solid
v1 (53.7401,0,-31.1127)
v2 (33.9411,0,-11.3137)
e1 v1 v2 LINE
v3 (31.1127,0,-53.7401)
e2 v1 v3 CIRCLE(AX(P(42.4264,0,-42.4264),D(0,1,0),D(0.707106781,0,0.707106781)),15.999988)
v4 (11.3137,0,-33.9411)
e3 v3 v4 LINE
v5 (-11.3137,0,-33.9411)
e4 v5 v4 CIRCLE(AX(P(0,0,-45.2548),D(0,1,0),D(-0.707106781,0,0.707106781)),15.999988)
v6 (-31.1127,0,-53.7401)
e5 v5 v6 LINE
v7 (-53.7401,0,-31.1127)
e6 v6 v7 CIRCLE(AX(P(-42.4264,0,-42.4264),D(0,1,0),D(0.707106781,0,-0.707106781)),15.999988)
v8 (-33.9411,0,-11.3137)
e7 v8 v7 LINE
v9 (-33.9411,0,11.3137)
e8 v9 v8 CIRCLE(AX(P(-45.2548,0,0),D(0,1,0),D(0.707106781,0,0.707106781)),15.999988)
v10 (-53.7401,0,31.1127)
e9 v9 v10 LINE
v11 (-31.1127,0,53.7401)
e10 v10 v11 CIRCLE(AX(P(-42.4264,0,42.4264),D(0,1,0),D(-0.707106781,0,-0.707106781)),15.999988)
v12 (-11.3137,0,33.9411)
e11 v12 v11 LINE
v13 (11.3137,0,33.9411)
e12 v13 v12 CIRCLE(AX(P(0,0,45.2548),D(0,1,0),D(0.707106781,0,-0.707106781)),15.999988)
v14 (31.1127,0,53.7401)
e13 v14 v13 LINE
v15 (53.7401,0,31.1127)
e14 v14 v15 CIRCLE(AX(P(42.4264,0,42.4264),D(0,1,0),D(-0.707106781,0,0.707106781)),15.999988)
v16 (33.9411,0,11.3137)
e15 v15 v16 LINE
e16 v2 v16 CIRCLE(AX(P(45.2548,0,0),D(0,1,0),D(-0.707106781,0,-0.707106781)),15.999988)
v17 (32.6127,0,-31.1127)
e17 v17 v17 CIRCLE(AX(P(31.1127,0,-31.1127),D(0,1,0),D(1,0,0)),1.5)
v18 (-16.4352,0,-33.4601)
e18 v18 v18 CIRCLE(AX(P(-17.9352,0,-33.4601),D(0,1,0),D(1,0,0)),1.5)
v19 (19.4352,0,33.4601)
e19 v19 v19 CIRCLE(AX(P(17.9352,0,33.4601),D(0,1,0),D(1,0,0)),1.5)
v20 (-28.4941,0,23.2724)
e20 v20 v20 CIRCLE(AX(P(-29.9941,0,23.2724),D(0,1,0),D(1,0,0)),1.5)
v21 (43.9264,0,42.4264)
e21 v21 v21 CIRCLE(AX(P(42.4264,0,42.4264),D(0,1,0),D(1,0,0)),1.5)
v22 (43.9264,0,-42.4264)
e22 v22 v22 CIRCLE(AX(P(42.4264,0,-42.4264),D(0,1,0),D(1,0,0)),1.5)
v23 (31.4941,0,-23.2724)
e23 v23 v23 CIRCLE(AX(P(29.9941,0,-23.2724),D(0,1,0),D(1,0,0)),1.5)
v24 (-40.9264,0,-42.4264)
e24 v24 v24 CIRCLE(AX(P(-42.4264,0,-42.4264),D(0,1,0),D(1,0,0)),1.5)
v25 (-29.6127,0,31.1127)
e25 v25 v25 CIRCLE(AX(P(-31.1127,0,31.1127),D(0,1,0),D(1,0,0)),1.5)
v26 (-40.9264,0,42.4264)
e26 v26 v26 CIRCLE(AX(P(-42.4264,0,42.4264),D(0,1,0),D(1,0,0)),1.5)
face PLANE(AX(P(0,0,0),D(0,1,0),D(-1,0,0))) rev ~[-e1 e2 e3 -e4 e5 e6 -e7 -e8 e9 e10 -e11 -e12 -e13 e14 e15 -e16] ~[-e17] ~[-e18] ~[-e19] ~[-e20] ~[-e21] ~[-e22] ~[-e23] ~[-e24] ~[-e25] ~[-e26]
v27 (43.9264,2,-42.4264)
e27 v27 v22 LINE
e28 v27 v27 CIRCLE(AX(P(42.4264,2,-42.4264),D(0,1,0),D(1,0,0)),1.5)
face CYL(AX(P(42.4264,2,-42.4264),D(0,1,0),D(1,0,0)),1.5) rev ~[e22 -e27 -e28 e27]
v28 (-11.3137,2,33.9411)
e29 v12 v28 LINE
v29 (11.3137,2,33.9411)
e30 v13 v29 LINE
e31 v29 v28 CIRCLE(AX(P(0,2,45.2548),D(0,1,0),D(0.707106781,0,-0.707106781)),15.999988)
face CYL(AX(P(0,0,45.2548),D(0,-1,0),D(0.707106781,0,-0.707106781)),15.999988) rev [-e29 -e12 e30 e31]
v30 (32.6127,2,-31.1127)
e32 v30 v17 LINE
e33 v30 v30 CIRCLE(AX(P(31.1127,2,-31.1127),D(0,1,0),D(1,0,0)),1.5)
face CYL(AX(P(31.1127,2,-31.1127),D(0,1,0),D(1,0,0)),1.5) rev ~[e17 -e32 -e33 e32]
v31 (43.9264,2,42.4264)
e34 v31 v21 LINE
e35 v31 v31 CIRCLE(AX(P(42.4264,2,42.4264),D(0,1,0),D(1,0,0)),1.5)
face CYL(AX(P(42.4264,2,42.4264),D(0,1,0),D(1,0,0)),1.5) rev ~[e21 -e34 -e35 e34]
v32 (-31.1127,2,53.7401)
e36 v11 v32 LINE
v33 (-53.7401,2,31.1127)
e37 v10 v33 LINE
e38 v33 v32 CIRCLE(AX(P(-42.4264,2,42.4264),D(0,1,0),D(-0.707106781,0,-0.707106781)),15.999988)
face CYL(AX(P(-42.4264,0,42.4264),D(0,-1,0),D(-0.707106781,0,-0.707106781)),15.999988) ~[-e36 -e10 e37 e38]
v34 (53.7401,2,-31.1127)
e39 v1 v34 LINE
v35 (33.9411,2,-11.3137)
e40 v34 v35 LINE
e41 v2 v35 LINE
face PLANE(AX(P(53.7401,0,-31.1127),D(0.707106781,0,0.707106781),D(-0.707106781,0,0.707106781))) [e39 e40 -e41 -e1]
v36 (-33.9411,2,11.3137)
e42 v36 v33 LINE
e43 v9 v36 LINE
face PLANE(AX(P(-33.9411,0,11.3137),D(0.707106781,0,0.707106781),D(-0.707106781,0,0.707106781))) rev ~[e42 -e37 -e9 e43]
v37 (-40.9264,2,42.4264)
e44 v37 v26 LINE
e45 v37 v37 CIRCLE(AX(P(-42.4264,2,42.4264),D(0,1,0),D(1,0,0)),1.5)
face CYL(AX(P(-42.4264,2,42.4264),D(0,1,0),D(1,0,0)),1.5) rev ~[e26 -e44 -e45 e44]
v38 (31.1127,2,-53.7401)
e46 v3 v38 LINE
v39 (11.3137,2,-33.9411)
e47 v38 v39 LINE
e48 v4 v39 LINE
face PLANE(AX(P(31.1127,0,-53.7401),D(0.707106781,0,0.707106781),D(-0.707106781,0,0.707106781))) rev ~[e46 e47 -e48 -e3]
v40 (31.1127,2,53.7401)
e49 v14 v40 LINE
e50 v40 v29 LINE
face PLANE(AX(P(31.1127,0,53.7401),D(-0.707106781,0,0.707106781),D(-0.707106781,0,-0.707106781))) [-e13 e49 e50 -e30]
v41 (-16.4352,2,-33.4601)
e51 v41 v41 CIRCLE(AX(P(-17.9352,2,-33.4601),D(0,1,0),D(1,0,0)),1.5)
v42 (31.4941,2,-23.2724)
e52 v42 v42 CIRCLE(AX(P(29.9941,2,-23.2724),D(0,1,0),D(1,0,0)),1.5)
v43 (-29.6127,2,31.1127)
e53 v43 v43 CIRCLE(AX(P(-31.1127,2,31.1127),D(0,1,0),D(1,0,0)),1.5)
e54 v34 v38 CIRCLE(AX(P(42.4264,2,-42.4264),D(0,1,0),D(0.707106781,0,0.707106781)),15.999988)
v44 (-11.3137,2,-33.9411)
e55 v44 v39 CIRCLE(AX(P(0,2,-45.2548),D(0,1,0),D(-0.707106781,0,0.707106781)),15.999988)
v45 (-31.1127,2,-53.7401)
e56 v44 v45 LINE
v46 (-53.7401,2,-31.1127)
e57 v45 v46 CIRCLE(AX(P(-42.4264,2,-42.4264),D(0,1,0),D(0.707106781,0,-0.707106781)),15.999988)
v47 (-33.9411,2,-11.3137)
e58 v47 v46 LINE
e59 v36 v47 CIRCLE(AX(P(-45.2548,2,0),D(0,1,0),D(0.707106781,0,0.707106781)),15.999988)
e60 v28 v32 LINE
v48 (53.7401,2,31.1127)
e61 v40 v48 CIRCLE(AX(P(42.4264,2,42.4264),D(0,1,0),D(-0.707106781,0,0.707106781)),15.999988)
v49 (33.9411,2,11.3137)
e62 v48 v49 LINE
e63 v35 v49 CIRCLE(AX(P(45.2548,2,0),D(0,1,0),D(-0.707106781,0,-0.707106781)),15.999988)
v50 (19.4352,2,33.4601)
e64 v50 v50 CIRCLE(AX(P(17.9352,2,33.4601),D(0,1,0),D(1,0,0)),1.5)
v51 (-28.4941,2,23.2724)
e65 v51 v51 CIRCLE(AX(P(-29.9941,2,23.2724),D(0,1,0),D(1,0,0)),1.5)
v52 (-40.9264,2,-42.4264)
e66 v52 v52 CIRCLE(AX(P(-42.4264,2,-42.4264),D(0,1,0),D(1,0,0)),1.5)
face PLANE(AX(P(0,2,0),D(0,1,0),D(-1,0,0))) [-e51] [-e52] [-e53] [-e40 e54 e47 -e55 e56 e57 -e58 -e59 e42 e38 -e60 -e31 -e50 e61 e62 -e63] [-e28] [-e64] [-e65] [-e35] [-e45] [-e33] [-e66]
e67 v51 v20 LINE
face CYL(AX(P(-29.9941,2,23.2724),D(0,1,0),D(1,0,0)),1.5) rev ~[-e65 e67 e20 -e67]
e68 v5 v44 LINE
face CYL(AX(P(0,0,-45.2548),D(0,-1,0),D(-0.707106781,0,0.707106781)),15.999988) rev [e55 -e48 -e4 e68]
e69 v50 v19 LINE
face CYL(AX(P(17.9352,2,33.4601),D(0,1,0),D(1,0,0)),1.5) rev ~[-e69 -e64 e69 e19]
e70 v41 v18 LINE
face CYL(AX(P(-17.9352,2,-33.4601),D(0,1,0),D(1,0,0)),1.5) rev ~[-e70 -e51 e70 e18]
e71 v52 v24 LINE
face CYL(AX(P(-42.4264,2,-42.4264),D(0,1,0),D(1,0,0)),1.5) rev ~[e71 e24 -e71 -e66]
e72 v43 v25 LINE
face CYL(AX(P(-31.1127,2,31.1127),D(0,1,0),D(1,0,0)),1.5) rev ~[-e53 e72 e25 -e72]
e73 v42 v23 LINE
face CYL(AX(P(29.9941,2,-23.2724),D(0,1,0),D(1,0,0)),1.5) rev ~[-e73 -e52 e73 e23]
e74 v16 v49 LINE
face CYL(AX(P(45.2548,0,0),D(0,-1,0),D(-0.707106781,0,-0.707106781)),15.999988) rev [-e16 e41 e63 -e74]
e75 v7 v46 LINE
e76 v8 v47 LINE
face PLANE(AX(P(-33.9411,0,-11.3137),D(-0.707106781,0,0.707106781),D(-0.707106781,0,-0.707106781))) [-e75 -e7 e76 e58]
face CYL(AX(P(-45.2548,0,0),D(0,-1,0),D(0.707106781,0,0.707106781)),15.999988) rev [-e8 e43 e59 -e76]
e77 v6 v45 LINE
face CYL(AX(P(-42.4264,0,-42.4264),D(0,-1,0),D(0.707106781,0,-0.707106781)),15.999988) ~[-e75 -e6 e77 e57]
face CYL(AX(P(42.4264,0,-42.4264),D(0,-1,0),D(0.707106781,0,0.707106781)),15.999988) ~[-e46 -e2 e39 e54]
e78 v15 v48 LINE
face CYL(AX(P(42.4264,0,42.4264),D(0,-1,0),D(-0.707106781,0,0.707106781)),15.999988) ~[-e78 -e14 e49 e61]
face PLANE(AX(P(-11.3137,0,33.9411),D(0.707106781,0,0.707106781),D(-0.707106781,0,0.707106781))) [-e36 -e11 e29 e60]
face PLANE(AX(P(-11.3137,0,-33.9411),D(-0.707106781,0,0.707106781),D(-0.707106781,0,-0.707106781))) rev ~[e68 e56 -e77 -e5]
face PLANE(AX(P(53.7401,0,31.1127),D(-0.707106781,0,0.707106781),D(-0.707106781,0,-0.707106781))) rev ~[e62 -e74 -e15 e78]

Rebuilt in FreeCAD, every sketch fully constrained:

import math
import FreeCAD as App
import Part
import Sketcher

doc = App.newDocument("Part")
body = doc.addObject("PartDesign::Body", "Body")

# Sketch on XZ plane
sketch1 = body.newObject("Sketcher::SketchObject", "Sketch")
sketch1.AttachmentSupport = (doc.getObject("XZ_Plane"), [""])
sketch1.MapMode = "FlatFace"
sketch1.addGeometry([
    Part.LineSegment(App.Vector(33.9411, -11.3137, 0), App.Vector(53.7401, -31.1127, 0)),  # 0
    Part.ArcOfCircle(Part.Circle(App.Vector(42.4264, -42.4264, 0), App.Vector(0, 0, 1), 15.999988), math.radians(-135), math.radians(45)),  # 1
    Part.LineSegment(App.Vector(31.1127, -53.7401, 0), App.Vector(11.3137, -33.9411, 0)),  # 2
    Part.ArcOfCircle(Part.Circle(App.Vector(0, -45.2548, 0), App.Vector(0, 0, 1), 15.999988), math.radians(45), math.radians(135)),  # 3
    Part.LineSegment(App.Vector(-11.3137, -33.9411, 0), App.Vector(-31.1127, -53.7401, 0)),  # 4
    Part.ArcOfCircle(Part.Circle(App.Vector(-42.4264, -42.4264, 0), App.Vector(0, 0, 1), 15.999988), math.radians(135), math.radians(315)),  # 5
    Part.LineSegment(App.Vector(-53.7401, -31.1127, 0), App.Vector(-33.9411, -11.3137, 0)),  # 6
    Part.ArcOfCircle(Part.Circle(App.Vector(-45.2548, 0, 0), App.Vector(0, 0, 1), 15.999988), math.radians(-45), math.radians(45)),  # 7
    Part.LineSegment(App.Vector(-33.9411, 11.3137, 0), App.Vector(-53.7401, 31.1127, 0)),  # 8
    Part.ArcOfCircle(Part.Circle(App.Vector(-42.4264, 42.4264, 0), App.Vector(0, 0, 1), 15.999988), math.radians(45), math.radians(225)),  # 9
    Part.LineSegment(App.Vector(-31.1127, 53.7401, 0), App.Vector(-11.3137, 33.9411, 0)),  # 10
    Part.ArcOfCircle(Part.Circle(App.Vector(0, 45.2548, 0), App.Vector(0, 0, 1), 15.999988), math.radians(-135), math.radians(-45)),  # 11
    Part.LineSegment(App.Vector(11.3137, 33.9411, 0), App.Vector(31.1127, 53.7401, 0)),  # 12
    Part.ArcOfCircle(Part.Circle(App.Vector(42.4264, 42.4264, 0), App.Vector(0, 0, 1), 15.999988), math.radians(-45), math.radians(135)),  # 13
    Part.LineSegment(App.Vector(53.7401, 31.1127, 0), App.Vector(33.9411, 11.3137, 0)),  # 14
    Part.ArcOfCircle(Part.Circle(App.Vector(45.2548, 0, 0), App.Vector(0, 0, 1), 15.999988), math.radians(135), math.radians(225)),  # 15
], False)
sketch1.addConstraint([
    Sketcher.Constraint("Tangent", 0, 2, 1, 2),
    Sketcher.Constraint("Tangent", 1, 1, 2, 1),
    Sketcher.Constraint("Tangent", 2, 2, 3, 1),
    Sketcher.Constraint("Tangent", 3, 2, 4, 1),
    Sketcher.Constraint("Tangent", 4, 2, 5, 2),
    Sketcher.Constraint("Tangent", 5, 1, 6, 1),
    Sketcher.Constraint("Tangent", 6, 2, 7, 1),
    Sketcher.Constraint("Tangent", 7, 2, 8, 1),
    Sketcher.Constraint("Tangent", 8, 2, 9, 2),
    Sketcher.Constraint("Tangent", 9, 1, 10, 1),
    Sketcher.Constraint("Tangent", 10, 2, 11, 1),
    Sketcher.Constraint("Tangent", 11, 2, 12, 1),
    Sketcher.Constraint("Tangent", 12, 2, 13, 2),
    Sketcher.Constraint("Tangent", 13, 1, 14, 1),
    Sketcher.Constraint("Tangent", 14, 2, 15, 1),
    Sketcher.Constraint("Tangent", 15, 2, 0, 1),
    Sketcher.Constraint("Equal", 1, 3),
    Sketcher.Constraint("Equal", 3, 5),
    Sketcher.Constraint("Equal", 5, 7),
    Sketcher.Constraint("Equal", 7, 9),
    Sketcher.Constraint("Equal", 9, 11),
    Sketcher.Constraint("Equal", 11, 13),
    Sketcher.Constraint("Equal", 13, 15),
    Sketcher.Constraint("Symmetric", 1, 3, 9, 3, -1, 1),
    Sketcher.Constraint("Symmetric", 3, 3, 11, 3, -1, 1),
    Sketcher.Constraint("Symmetric", 5, 3, 13, 3, -1, 1),
    Sketcher.Constraint("Symmetric", 7, 3, 15, 3, -1, 1),
    Sketcher.Constraint("Symmetric", 1, 3, 5, 3, -2),
    Sketcher.Constraint("PointOnObject", 3, 3, -2),
    Sketcher.Constraint("PointOnObject", 7, 3, -1),
    Sketcher.Constraint("Parallel", 0, 2),
    Sketcher.Constraint("Perpendicular", 2, 4),
    Sketcher.Constraint("Equal", 0, 2),
    Sketcher.Constraint("Radius", 1, 16.0),
    Sketcher.Constraint("Distance", 0, 28.0),
])
pad1 = body.newObject("PartDesign::Pad", "Pad")
pad1.Profile = sketch1
pad1.Length = 2
pad1.Reversed = True

# Sketch on XZ plane
sketch2 = body.newObject("Sketcher::SketchObject", "Sketch001")
sketch2.AttachmentSupport = (doc.getObject("XZ_Plane"), [""])
sketch2.MapMode = "FlatFace"
sketch2.AttachmentOffset = App.Placement(App.Vector(0, 0, -2), App.Rotation())
sketch2.addGeometry([
    Part.Circle(App.Vector(42.4264, -42.4264, 0), App.Vector(0, 0, 1), 1.5),  # 0
    Part.Circle(App.Vector(-42.4264, -42.4264, 0), App.Vector(0, 0, 1), 1.5),  # 1
    Part.Circle(App.Vector(-42.4264, 42.4264, 0), App.Vector(0, 0, 1), 1.5),  # 2
    Part.Circle(App.Vector(42.4264, 42.4264, 0), App.Vector(0, 0, 1), 1.5),  # 3
    Part.Circle(App.Vector(-31.1127, 31.1127, 0), App.Vector(0, 0, 1), 1.5),  # 4
    Part.Circle(App.Vector(31.1127, -31.1127, 0), App.Vector(0, 0, 1), 1.5),  # 5
    Part.Circle(App.Vector(-29.9941, 23.2724, 0), App.Vector(0, 0, 1), 1.5),  # 6
    Part.Circle(App.Vector(-17.9352, -33.4601, 0), App.Vector(0, 0, 1), 1.5),  # 7
    Part.Circle(App.Vector(29.9941, -23.2724, 0), App.Vector(0, 0, 1), 1.5),  # 8
    Part.Circle(App.Vector(17.9352, 33.4601, 0), App.Vector(0, 0, 1), 1.5),  # 9
], False)
sketch2.addConstraint([
    Sketcher.Constraint("Equal", 0, 1),
    Sketcher.Constraint("Equal", 1, 2),
    Sketcher.Constraint("Equal", 2, 3),
    Sketcher.Constraint("Equal", 3, 4),
    Sketcher.Constraint("Equal", 4, 5),
    Sketcher.Constraint("Equal", 5, 6),
    Sketcher.Constraint("Equal", 6, 7),
    Sketcher.Constraint("Equal", 7, 8),
    Sketcher.Constraint("Equal", 8, 9),
    Sketcher.Constraint("Symmetric", 0, 3, 2, 3, -1, 1),
    Sketcher.Constraint("Symmetric", 1, 3, 3, 3, -1, 1),
    Sketcher.Constraint("Symmetric", 4, 3, 5, 3, -1, 1),
    Sketcher.Constraint("Symmetric", 6, 3, 8, 3, -1, 1),
    Sketcher.Constraint("Symmetric", 7, 3, 9, 3, -1, 1),
    Sketcher.Constraint("Symmetric", 0, 3, 1, 3, -2),
    Sketcher.Constraint("Diameter", 0, 3.0),
    Sketcher.Constraint("DistanceY", 7, 3, -1, 1, 33.46),
    Sketcher.Constraint("DistanceX", 6, 3, -1, 1, 29.994),
    Sketcher.Constraint("DistanceY", 1, 3, 4, 3, 73.539),
    Sketcher.Constraint("DistanceX", 4, 3, 3, 3, 73.539),
    Sketcher.Constraint("DistanceY", 6, 3, 2, 3, 19.154),
    Sketcher.Constraint("DistanceX", 7, 3, 5, 3, 49.048),
    Sketcher.Constraint("DistanceX", 6, 3, 7, 3, 12.059),
    Sketcher.Constraint("DistanceY", 0, 3, -1, 1, 42.4264),
])
pocket1 = body.newObject("PartDesign::Pocket", "Pocket")
pocket1.Profile = sketch2
pocket1.Length = 20
pocket1.Reversed = True

doc.recompute()
